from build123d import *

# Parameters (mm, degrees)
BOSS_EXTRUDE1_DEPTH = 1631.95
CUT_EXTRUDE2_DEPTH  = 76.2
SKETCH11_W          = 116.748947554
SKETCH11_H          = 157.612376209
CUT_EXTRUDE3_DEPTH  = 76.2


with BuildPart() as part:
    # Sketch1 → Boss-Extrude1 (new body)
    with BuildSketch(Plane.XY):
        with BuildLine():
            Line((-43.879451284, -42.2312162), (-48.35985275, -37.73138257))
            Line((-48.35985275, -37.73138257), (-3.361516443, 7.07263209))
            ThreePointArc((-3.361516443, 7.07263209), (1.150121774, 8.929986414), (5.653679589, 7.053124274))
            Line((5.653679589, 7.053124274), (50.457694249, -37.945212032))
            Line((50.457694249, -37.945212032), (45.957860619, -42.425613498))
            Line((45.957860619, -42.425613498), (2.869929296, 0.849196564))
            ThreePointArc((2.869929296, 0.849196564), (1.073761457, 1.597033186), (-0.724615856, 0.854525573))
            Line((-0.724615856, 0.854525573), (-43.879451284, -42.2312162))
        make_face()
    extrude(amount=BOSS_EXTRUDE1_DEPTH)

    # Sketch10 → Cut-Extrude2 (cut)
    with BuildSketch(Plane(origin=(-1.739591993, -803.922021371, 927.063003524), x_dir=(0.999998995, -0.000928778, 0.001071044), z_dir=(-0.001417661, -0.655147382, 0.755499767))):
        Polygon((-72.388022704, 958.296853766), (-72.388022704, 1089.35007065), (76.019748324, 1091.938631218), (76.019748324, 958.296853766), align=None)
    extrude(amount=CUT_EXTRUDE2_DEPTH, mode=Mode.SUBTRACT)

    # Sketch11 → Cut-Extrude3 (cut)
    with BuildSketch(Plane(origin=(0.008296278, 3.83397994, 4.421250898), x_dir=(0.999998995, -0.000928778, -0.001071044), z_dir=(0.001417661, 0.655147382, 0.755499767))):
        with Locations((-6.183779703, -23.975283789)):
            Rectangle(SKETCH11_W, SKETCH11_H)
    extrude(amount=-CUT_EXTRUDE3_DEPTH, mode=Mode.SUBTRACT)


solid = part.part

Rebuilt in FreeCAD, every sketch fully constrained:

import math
import FreeCAD as App
import Part
import Sketcher
Q = App.Units.Quantity

doc = App.newDocument("Part")
body = doc.addObject("PartDesign::Body", "Body")

sketch1 = body.newObject("Sketcher::SketchObject", "Sketch")
sketch1.AttachmentSupport = (doc.getObject("XY_Plane"), [""])
sketch1.MapMode = "FlatFace"
sketch1.addGeometry(Part.LineSegment(App.Vector(-48.4, -37.7, 0), App.Vector(-43.9, -42.2, 0)), False)
sketch1.addGeometry(Part.LineSegment(App.Vector(-43.9, -42.2, 0), App.Vector(-0.7, 0.9, 0)), False)
sketch1.addGeometry(Part.ArcOfCircle(Part.Circle(App.Vector(1.1, -0.9, 0), App.Vector(0, 0, 1), 2.5), math.radians(45), math.radians(135)), False)
sketch1.addGeometry(Part.LineSegment(App.Vector(2.9, 0.8, 0), App.Vector(46, -42.4, 0)), False)
sketch1.addGeometry(Part.LineSegment(App.Vector(46, -42.4, 0), App.Vector(50.5, -37.9, 0)), False)
sketch1.addGeometry(Part.LineSegment(App.Vector(50.5, -37.9, 0), App.Vector(5.7, 7.1, 0)), False)
sketch1.addGeometry(Part.ArcOfCircle(Part.Circle(App.Vector(1.1, 2.6, 0), App.Vector(0, 0, 1), 6.4), math.radians(45), math.radians(135)), False)
sketch1.addGeometry(Part.LineSegment(App.Vector(-3.4, 7.1, 0), App.Vector(-48.4, -37.7, 0)), False)
sketch1.addConstraint(Sketcher.Constraint("Coincident", 0, 2, 1, 1))
sketch1.addConstraint(Sketcher.Constraint("Tangent", 1, 2, 2, 2))
sketch1.addConstraint(Sketcher.Constraint("Tangent", 2, 1, 3, 1))
sketch1.addConstraint(Sketcher.Constraint("Coincident", 3, 2, 4, 1))
sketch1.addConstraint(Sketcher.Constraint("Coincident", 4, 2, 5, 1))
sketch1.addConstraint(Sketcher.Constraint("Tangent", 5, 2, 6, 1))
sketch1.addConstraint(Sketcher.Constraint("Tangent", 6, 2, 7, 1))
sketch1.addConstraint(Sketcher.Constraint("Coincident", 7, 2, 0, 1))
sketch1.addConstraint(Sketcher.Constraint("Parallel", 0, 3))
sketch1.addConstraint(Sketcher.Constraint("Perpendicular", 3, 4))
sketch1.addConstraint(Sketcher.Constraint("Perpendicular", 4, 5))
sketch1.addConstraint(Sketcher.Constraint("Perpendicular", 5, 7))
sketch1.addConstraint(Sketcher.Constraint("Equal", 0, 4))
sketch1.addConstraint(Sketcher.Constraint("Equal", 5, 7))
sketch1.addConstraint(Sketcher.Constraint("Radius", 2, Q("0.1 in")))
sketch1.addConstraint(Sketcher.Constraint("Distance", 5, Q("2.5 in")))
sketch1.addConstraint(Sketcher.Constraint("Distance", 0, Q("0.25 in")))
sketch1.addConstraint(Sketcher.Constraint("Radius", 6, 6.374721))
sketch1.addConstraint(Sketcher.Constraint("DistanceX", 6, 3, 2, 1, 1.733602))
sketch1.addConstraint(Sketcher.Constraint("DistanceY", 3, 2, 4, 2, 4.480401))
sketch1.addConstraint(Sketcher.Constraint("DistanceY", -1, 1, 6, 3, 2.55528))
sketch1.addConstraint(Sketcher.Constraint("DistanceX", 0, 2, -1, 1, 43.879451))
pad1 = body.newObject("PartDesign::Pad", "Pad")
pad1.Profile = sketch1
pad1.Length = Q("64.25 in")

sketch2 = body.newObject("Sketcher::SketchObject", "Sketch001")
sketch2.Placement = App.Placement(App.Vector(-1.739592, -803.922021, 927.063004), App.Rotation(App.Vector(0.999998995, -0.000928778, 0.001071044), App.Vector(0, 0.755500526, 0.65514804), App.Vector(-0.001417661, -0.655147382, 0.755499767), "ZXY"))
sketch2.addGeometry(Part.LineSegment(App.Vector(-72, 1089, 0), App.Vector(-72, 958, 0)), False)
sketch2.addGeometry(Part.LineSegment(App.Vector(-72, 958, 0), App.Vector(76, 958, 0)), False)
sketch2.addGeometry(Part.LineSegment(App.Vector(76, 958, 0), App.Vector(76, 1092, 0)), False)
sketch2.addGeometry(Part.LineSegment(App.Vector(76, 1092, 0), App.Vector(-72, 1089, 0)), False)
sketch2.addConstraint(Sketcher.Constraint("Coincident", 0, 2, 1, 1))
sketch2.addConstraint(Sketcher.Constraint("Coincident", 1, 2, 2, 1))
sketch2.addConstraint(Sketcher.Constraint("Coincident", 2, 2, 3, 1))
sketch2.addConstraint(Sketcher.Constraint("Coincident", 3, 2, 0, 1))
sketch2.addConstraint(Sketcher.Constraint("Vertical", 0))
sketch2.addConstraint(Sketcher.Constraint("Horizontal", 1))
sketch2.addConstraint(Sketcher.Constraint("Vertical", 2))
sketch2.addConstraint(Sketcher.Constraint("DistanceX", 1, 1, 1, 2, 148.407771))
sketch2.addConstraint(Sketcher.Constraint("DistanceY", 0, 2, 0, 1, 131.053217))
sketch2.addConstraint(Sketcher.Constraint("DistanceY", 2, 1, 2, 2, 133.641777))
sketch2.addConstraint(Sketcher.Constraint("DistanceX", -1, 1, 1, 2, 76.019748))
sketch2.addConstraint(Sketcher.Constraint("DistanceY", -1, 1, 2, 2, 1091.938631))
pocket1 = body.newObject("PartDesign::Pocket", "Pocket")
pocket1.Profile = sketch2
pocket1.Length = Q("3 in")
pocket1.Reversed = True

sketch3 = body.newObject("Sketcher::SketchObject", "Sketch002")
sketch3.Placement = App.Placement(App.Vector(0.008296, 3.83398, 4.421251), App.Rotation(App.Vector(0.999998995, -0.000928778, -0.001071044), App.Vector(0, 0.755500526, -0.65514804), App.Vector(0.001417661, 0.655147382, 0.755499767), "ZXY"))
sketch3.addGeometry(Part.LineSegment(App.Vector(-65, 55, 0), App.Vector(-65, -103, 0)), False)
sketch3.addGeometry(Part.LineSegment(App.Vector(-65, -103, 0), App.Vector(52, -103, 0)), False)
sketch3.addGeometry(Part.LineSegment(App.Vector(52, -103, 0), App.Vector(52, 55, 0)), False)
sketch3.addGeometry(Part.LineSegment(App.Vector(52, 55, 0), App.Vector(-65, 55, 0)), False)
sketch3.addConstraint(Sketcher.Constraint("Coincident", 0, 2, 1, 1))
sketch3.addConstraint(Sketcher.Constraint("Coincident", 1, 2, 2, 1))
sketch3.addConstraint(Sketcher.Constraint("Coincident", 2, 2, 3, 1))
sketch3.addConstraint(Sketcher.Constraint("Coincident", 3, 2, 0, 1))
sketch3.addConstraint(Sketcher.Constraint("Vertical", 0))
sketch3.addConstraint(Sketcher.Constraint("Horizontal", 1))
sketch3.addConstraint(Sketcher.Constraint("Vertical", 2))
sketch3.addConstraint(Sketcher.Constraint("Horizontal", 3))
sketch3.addConstraint(Sketcher.Constraint("DistanceX", 1, 1, 1, 2, 116.748948))
sketch3.addConstraint(Sketcher.Constraint("DistanceY", 0, 2, 0, 1, 157.612376))
sketch3.addConstraint(Sketcher.Constraint("DistanceY", 0, 2, -1, 1, 102.781472))
sketch3.addConstraint(Sketcher.Constraint("DistanceX", 0, 2, -1, 1, 64.558253))
pocket2 = body.newObject("PartDesign::Pocket", "Pocket001")
pocket2.Profile = sketch3
pocket2.Length = Q("3 in")

doc.recompute()
